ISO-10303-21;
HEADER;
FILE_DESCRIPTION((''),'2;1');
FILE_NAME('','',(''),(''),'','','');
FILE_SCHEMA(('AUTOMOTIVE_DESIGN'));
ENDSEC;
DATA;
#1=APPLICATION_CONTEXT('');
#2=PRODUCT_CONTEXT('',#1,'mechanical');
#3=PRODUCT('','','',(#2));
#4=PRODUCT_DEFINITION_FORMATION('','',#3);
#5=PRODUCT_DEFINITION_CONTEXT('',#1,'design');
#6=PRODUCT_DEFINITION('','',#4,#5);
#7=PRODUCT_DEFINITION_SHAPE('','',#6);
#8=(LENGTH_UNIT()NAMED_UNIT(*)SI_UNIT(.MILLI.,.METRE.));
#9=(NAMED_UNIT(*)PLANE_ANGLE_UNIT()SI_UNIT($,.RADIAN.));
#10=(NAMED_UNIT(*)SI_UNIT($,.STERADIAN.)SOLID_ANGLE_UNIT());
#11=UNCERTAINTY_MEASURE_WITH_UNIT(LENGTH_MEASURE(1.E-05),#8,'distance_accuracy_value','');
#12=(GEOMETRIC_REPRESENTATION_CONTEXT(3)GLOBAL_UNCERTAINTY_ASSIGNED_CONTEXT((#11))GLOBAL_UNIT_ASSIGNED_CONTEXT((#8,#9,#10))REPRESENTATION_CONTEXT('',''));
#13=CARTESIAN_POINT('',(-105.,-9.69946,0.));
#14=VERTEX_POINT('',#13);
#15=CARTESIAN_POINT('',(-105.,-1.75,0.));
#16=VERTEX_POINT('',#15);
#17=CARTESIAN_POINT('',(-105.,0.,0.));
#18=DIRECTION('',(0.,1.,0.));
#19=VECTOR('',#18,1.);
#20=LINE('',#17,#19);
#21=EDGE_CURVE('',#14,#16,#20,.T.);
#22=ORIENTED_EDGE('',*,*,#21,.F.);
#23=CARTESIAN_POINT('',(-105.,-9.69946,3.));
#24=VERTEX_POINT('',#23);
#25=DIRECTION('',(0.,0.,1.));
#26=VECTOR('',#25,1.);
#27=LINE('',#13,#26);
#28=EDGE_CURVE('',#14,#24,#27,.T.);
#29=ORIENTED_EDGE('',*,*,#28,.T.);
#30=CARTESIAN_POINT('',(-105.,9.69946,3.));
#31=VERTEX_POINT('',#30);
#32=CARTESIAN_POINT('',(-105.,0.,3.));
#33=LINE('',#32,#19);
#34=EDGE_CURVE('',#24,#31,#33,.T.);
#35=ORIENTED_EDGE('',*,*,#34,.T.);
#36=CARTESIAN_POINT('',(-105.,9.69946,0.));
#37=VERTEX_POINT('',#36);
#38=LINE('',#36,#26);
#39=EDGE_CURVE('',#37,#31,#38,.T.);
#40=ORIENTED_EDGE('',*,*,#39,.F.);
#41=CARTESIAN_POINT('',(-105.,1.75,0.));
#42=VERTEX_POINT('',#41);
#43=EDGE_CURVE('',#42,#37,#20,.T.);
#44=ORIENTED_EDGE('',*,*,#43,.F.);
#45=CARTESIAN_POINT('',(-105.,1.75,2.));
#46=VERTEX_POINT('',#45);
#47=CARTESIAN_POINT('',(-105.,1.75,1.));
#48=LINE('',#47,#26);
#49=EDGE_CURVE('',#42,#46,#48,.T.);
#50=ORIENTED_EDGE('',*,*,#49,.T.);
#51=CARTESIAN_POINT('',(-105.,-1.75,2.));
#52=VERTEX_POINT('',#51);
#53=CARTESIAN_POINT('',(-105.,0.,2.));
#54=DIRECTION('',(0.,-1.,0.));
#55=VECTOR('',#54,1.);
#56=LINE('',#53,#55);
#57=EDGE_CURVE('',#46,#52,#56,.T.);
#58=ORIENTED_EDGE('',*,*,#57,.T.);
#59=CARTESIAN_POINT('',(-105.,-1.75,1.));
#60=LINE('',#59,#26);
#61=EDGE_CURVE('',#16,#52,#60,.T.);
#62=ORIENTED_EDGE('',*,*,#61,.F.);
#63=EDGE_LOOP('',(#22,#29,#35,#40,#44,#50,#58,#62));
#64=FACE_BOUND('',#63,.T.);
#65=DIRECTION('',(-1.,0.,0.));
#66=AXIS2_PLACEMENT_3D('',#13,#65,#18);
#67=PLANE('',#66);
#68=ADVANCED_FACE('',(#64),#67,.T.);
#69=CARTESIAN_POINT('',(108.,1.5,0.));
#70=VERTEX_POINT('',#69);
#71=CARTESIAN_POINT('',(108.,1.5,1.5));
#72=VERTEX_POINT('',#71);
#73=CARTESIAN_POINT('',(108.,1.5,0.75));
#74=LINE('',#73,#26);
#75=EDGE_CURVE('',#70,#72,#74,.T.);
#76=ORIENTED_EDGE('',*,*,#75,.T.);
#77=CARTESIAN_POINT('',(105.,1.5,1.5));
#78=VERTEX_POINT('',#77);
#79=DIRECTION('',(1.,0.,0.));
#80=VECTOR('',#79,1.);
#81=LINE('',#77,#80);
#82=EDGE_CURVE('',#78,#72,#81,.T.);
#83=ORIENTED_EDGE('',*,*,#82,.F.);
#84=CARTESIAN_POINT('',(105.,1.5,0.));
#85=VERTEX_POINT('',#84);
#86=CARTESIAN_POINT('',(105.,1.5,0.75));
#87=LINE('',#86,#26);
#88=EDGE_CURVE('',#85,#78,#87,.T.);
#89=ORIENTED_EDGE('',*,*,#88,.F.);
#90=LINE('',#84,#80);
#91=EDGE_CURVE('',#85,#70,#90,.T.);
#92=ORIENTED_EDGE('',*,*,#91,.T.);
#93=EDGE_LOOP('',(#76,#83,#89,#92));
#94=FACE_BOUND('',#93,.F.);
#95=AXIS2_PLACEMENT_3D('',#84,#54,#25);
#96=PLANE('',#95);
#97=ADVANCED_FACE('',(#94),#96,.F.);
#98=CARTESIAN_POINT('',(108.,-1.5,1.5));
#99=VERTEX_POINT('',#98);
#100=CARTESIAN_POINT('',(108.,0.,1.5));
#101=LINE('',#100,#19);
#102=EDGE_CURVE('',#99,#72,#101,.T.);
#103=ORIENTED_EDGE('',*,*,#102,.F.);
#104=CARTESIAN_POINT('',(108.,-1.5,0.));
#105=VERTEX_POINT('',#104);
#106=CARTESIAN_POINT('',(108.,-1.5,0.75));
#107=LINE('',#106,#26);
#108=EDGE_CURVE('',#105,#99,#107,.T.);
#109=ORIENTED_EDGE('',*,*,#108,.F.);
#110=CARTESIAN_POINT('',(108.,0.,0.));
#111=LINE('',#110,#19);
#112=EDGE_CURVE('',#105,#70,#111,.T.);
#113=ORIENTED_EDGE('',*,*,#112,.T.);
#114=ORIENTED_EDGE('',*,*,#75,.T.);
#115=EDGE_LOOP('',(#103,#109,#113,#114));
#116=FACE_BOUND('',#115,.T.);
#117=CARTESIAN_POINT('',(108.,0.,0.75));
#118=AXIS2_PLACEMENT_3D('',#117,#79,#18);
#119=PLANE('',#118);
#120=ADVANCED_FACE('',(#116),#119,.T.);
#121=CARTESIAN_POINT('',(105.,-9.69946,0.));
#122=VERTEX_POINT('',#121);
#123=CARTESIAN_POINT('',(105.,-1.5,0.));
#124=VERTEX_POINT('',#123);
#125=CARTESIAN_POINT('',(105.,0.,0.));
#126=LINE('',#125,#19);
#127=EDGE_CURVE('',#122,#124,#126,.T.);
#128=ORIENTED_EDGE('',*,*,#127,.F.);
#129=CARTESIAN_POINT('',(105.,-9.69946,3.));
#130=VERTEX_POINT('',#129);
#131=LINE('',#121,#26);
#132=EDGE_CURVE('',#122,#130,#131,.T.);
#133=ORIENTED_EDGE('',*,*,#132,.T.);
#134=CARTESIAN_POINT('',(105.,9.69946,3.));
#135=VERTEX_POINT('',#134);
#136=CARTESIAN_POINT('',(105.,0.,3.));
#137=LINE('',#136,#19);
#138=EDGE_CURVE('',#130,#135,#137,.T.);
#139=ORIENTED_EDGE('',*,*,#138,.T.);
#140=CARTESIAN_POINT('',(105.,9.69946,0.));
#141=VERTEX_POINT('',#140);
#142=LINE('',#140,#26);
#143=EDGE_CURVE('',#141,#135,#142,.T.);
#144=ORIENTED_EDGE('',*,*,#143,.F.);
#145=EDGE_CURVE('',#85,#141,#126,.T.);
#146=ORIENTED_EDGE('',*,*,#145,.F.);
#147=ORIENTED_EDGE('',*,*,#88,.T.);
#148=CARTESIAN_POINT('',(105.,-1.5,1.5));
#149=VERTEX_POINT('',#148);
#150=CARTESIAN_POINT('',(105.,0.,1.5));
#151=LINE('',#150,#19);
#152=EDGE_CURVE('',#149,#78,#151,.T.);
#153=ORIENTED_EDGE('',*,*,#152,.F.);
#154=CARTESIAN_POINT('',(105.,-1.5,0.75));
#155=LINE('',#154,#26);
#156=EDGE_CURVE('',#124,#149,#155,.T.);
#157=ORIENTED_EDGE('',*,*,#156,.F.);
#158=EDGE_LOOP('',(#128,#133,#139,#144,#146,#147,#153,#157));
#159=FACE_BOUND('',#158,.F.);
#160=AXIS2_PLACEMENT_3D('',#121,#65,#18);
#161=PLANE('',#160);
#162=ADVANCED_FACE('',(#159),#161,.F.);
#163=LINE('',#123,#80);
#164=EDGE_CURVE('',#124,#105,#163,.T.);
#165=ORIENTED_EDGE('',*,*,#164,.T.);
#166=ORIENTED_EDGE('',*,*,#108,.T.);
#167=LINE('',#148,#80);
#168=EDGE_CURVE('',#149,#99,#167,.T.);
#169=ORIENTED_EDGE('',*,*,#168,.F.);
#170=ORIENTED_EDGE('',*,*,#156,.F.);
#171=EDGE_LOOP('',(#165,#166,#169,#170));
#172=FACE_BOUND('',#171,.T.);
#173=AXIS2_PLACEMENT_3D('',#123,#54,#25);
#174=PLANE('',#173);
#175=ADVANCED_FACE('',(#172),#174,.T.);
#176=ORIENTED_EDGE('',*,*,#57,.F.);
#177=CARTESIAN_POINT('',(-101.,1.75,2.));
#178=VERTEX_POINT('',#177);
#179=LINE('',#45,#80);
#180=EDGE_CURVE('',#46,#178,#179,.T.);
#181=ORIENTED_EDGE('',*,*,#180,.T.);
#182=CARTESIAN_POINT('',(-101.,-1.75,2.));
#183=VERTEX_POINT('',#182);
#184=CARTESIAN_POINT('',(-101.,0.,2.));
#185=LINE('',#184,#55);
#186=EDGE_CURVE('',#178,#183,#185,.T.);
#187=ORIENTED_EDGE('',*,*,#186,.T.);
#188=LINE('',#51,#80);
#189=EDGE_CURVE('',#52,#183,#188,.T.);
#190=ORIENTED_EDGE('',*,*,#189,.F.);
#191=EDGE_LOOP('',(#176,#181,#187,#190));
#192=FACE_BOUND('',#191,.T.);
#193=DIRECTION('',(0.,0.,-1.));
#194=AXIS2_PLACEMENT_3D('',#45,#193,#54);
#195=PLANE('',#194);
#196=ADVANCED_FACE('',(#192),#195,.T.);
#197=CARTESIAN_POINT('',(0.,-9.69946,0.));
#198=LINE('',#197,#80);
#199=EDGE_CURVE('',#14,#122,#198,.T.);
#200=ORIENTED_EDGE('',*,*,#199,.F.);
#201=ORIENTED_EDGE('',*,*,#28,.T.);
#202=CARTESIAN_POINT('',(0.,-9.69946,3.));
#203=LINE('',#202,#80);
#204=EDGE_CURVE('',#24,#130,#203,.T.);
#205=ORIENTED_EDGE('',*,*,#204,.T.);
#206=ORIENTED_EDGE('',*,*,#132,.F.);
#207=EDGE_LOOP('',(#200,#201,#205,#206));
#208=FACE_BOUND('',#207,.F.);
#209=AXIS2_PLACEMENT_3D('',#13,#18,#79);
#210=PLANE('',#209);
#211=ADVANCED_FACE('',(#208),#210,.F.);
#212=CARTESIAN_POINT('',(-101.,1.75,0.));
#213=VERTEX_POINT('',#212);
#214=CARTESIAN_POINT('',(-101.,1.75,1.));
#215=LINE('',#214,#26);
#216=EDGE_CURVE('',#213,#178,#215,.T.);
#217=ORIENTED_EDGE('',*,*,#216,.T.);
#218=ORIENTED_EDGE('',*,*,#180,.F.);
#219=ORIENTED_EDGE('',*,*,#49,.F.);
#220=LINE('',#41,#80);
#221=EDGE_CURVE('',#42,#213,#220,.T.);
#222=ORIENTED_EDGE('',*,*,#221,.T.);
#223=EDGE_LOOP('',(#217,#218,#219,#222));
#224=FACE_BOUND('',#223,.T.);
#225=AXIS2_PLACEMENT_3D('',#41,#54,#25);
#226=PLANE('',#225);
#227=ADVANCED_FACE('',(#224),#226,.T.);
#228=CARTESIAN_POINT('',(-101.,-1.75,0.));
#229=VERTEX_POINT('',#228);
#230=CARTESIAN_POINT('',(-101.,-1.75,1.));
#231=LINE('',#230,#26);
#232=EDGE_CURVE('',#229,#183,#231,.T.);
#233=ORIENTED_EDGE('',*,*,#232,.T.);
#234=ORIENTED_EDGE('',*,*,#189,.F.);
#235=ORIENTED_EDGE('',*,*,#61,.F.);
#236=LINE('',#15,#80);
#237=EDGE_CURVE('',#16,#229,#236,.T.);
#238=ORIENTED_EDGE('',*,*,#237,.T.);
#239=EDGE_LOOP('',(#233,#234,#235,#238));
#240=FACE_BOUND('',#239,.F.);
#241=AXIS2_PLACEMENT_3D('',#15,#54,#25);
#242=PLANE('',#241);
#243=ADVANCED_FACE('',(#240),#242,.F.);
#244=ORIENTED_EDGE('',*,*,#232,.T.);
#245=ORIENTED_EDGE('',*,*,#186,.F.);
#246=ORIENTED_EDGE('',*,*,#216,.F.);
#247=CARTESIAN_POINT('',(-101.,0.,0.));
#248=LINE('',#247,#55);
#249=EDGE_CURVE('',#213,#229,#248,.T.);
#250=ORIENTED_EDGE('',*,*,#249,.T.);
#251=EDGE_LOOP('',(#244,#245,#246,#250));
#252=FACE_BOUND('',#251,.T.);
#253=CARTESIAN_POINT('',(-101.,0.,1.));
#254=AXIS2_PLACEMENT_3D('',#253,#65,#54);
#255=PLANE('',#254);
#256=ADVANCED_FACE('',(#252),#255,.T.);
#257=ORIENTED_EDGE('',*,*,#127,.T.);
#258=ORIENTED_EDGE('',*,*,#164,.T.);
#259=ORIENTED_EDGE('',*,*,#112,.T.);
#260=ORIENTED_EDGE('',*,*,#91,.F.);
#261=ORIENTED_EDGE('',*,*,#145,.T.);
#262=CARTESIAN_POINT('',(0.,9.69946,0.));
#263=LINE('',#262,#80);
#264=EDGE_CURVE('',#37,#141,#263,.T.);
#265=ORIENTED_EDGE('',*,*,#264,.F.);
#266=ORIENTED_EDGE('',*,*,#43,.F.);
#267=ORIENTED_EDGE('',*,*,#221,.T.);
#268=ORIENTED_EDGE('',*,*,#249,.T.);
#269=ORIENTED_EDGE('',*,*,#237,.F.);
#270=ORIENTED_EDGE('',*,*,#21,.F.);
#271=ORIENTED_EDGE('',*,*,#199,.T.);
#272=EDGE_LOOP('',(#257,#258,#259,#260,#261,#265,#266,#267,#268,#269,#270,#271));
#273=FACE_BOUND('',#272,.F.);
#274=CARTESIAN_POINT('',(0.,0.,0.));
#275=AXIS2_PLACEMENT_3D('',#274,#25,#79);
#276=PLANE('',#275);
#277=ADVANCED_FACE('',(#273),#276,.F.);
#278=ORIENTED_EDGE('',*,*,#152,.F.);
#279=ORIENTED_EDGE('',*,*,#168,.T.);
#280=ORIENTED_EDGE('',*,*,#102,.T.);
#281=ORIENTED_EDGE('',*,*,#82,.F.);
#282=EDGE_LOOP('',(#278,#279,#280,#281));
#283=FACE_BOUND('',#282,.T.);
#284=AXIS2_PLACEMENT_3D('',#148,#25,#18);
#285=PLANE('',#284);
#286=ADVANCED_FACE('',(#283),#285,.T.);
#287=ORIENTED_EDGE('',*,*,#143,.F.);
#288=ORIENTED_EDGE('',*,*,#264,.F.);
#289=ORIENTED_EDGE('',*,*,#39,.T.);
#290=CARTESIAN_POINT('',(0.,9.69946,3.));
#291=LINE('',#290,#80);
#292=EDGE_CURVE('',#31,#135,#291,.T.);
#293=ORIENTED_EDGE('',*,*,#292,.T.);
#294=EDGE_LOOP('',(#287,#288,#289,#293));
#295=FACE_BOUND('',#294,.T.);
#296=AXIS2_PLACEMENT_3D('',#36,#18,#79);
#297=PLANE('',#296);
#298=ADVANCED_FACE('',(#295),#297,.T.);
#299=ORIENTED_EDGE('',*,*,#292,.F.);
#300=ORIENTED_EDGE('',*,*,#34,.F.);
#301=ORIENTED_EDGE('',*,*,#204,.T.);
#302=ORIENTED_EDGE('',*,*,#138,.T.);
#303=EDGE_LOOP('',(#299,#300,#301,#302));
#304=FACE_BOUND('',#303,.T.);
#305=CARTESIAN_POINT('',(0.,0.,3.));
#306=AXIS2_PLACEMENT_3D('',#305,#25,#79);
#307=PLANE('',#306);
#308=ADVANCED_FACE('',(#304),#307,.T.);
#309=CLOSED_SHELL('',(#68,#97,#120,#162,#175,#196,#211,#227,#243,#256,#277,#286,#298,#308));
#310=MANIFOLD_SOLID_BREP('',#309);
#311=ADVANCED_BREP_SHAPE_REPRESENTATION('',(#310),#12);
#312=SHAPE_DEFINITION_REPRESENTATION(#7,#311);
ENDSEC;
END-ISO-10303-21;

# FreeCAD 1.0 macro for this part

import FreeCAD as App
import Part
import Sketcher

V = App.Vector


def add_polygon(sketch, points):
    """Adds a closed chain of lines whose ends are joined by coincident constraints."""
    first, n = sketch.GeometryCount, len(points)
    for a, b in zip(points, points[1:] + points[:1]):
        sketch.addGeometry(Part.LineSegment(App.Vector(*a, 0), App.Vector(*b, 0)), False)
    for i in range(n):
        sketch.addConstraint(Sketcher.Constraint("Coincident", first + i, 2, first + (i + 1) % n, 1))

doc = App.newDocument("Part")
body = doc.addObject("PartDesign::Body", "Body")

sketch1 = body.newObject("Sketcher::SketchObject", "Sketch")
sketch1.AttachmentSupport = (doc.getObject("XY_Plane"), [""])
sketch1.MapMode = "FlatFace"
add_polygon(sketch1, [(-105, 10), (-105, -10), (105, -10), (105, 10)])
sketch1.addConstraint([
    Sketcher.Constraint("Vertical", 0),
    Sketcher.Constraint("Horizontal", 1),
    Sketcher.Constraint("Vertical", 2),
    Sketcher.Constraint("Horizontal", 3),
    Sketcher.Constraint("Symmetric", 0, 2, 2, 2, -1, 1),
    Sketcher.Constraint("DistanceX", 1, 1, 1, 2, 210.0),
    Sketcher.Constraint("DistanceY", 0, 2, 0, 1, 19.39892),
])
pad1 = body.newObject("PartDesign::Pad", "Pad")
pad1.Profile = sketch1
pad1.Length = 3

sketch2 = body.newObject("Sketcher::SketchObject", "Sketch001")
sketch2.AttachmentSupport = (doc.getObject("YZ_Plane"), [""])
sketch2.MapMode = "FlatFace"
sketch2.AttachmentOffset = App.Placement(V(0, 0, 105), App.Rotation())
add_polygon(sketch2, [(-1.5, 1.5), (-1.5, 0), (1.5, 0), (1.5, 1.5)])
sketch2.addConstraint([
    Sketcher.Constraint("Vertical", 0),
    Sketcher.Constraint("Horizontal", 1),
    Sketcher.Constraint("Vertical", 2),
    Sketcher.Constraint("Horizontal", 3),
    Sketcher.Constraint("Symmetric", 0, 2, 1, 2, -1, 1),
    Sketcher.Constraint("DistanceX", 1, 1, 1, 2, 3.0),
    Sketcher.Constraint("DistanceY", 0, 2, 0, 1, 1.5),
])
pad2 = body.newObject("PartDesign::Pad", "Pad001")
pad2.Profile = sketch2
pad2.Length = 3

sketch3 = body.newObject("Sketcher::SketchObject", "Sketch002")
sketch3.AttachmentSupport = (doc.getObject("YZ_Plane"), [""])
sketch3.MapMode = "FlatFace"
sketch3.AttachmentOffset = App.Placement(V(0, 0, -105), App.Rotation())
add_polygon(sketch3, [(1.8, 2), (1.8, 0), (-1.8, 0), (-1.8, 2)])
sketch3.addConstraint([
    Sketcher.Constraint("Vertical", 0),
    Sketcher.Constraint("Horizontal", 1),
    Sketcher.Constraint("Vertical", 2),
    Sketcher.Constraint("Horizontal", 3),
    Sketcher.Constraint("Symmetric", 0, 2, 1, 2, -1, 1),
    Sketcher.Constraint("DistanceY", 0, 2, 0, 1, 2.0),
    Sketcher.Constraint("DistanceX", 1, 2, 1, 1, 3.5),
])
pocket1 = body.newObject("PartDesign::Pocket", "Pocket")
pocket1.Profile = sketch3
pocket1.Length = 4
pocket1.Reversed = True

doc.recompute()
